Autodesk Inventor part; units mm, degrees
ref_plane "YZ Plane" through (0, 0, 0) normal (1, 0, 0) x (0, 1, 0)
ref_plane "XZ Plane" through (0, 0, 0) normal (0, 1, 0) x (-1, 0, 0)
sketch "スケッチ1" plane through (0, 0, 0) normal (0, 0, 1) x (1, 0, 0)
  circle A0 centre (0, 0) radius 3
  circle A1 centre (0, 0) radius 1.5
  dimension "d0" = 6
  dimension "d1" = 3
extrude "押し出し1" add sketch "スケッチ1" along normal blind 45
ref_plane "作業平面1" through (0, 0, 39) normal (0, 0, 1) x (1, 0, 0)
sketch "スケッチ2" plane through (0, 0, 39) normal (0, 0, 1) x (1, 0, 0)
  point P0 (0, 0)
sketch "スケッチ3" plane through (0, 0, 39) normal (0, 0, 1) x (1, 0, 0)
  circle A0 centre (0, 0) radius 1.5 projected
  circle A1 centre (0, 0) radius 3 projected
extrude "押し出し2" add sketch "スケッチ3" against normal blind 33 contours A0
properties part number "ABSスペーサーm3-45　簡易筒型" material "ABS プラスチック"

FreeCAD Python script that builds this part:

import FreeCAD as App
import Part
import Sketcher

doc = App.newDocument("Part")
params = doc.addObject("Spreadsheet::Sheet", "Params")
for row, (alias, value) in enumerate([
    ("sketch1_diameter", "6 mm"),
    ("sketch1_diameter2", "3 mm"),
    ("pad1_length", "45 mm"),
    ("sketch2_diameter", "3 mm"),
    ("pad2_length", "33 mm"),
], start=1):
    params.set(f"A{row}", alias)
    params.set(f"B{row}", "=" + value)
    params.setAlias(f"B{row}", alias)

body = doc.addObject("PartDesign::Body", "Body")

# Sketch on XY plane
sketch1 = doc.addObject("Sketcher::SketchObject", "Sketch")
body.addObject(sketch1)
sketch1.AttachmentSupport = (doc.XY_Plane, [""])
sketch1.MapMode = "FlatFace"
sketch1.addGeometry([
    Part.Circle(App.Vector(0, 0, 0), App.Vector(0, 0, 1), 3),
    Part.Circle(App.Vector(0, 0, 0), App.Vector(0, 0, 1), 1.5),
], False)
sketch1.addConstraint([
    Sketcher.Constraint("Coincident", 0, 3, -1, 1),
    Sketcher.Constraint("Coincident", 1, 3, -1, 1),
    Sketcher.Constraint("Diameter", 0, 6.0),
    Sketcher.Constraint("Diameter", 1, 3.0),
])
sketch1.setExpression("Constraints[2]", "Params.sketch1_diameter")
sketch1.setExpression("Constraints[3]", "Params.sketch1_diameter2")
pad1 = doc.addObject("PartDesign::Pad", "Pad")
body.addObject(pad1)
pad1.Profile = sketch1
pad1.setExpression("Length", "Params.pad1_length")

# Sketch on XY plane
sketch2 = doc.addObject("Sketcher::SketchObject", "Sketch001")
body.addObject(sketch2)
sketch2.AttachmentSupport = (doc.XY_Plane, [""])
sketch2.MapMode = "FlatFace"
sketch2.AttachmentOffset = App.Placement(App.Vector(0, 0, 39), App.Rotation())
sketch2.addGeometry(Part.Circle(App.Vector(0, 0, 0), App.Vector(0, 0, 1), 1.5), False)
sketch2.addConstraint([
    Sketcher.Constraint("Coincident", 0, 3, -1, 1),
    Sketcher.Constraint("Diameter", 0, 3.0),
])
sketch2.setExpression("Constraints[1]", "Params.sketch2_diameter")
pad2 = doc.addObject("PartDesign::Pad", "Pad001")
body.addObject(pad2)
pad2.Profile = sketch2
pad2.setExpression("Length", "Params.pad2_length")
pad2.Reversed = True

doc.recompute()
